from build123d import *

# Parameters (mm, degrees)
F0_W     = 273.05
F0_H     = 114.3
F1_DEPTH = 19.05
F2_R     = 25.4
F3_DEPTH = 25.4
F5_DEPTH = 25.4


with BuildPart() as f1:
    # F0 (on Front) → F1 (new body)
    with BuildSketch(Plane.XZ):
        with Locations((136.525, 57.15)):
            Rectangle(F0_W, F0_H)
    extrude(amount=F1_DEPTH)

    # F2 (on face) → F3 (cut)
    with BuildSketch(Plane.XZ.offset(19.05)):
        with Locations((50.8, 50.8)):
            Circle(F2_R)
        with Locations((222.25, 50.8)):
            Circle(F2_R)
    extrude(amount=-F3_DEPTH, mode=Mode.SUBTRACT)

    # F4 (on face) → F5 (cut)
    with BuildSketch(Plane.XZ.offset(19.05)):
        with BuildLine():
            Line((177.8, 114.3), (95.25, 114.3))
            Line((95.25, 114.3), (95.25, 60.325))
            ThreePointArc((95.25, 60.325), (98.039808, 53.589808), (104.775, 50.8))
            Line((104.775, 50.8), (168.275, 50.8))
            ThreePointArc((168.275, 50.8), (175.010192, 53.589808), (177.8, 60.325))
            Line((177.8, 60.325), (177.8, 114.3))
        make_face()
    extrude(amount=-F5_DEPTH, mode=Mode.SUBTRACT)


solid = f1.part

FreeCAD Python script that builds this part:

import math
import FreeCAD as App
import Part
import Sketcher
from FreeCAD import Vector
Q = App.Units.Quantity

doc = App.newDocument("Part")
body = doc.addObject("PartDesign::Body", "Body")

sketch1 = body.newObject("Sketcher::SketchObject", "Sketch")
sketch1.AttachmentSupport = (doc.getObject("XZ_Plane"), [""])
sketch1.MapMode = "FlatFace"
sketch1.addGeometry(Part.LineSegment(Vector(0, 114, 0), Vector(0, 0, 0)), False)
sketch1.addGeometry(Part.LineSegment(Vector(0, 0, 0), Vector(273, 0, 0)), False)
sketch1.addGeometry(Part.LineSegment(Vector(273, 0, 0), Vector(273, 114, 0)), False)
sketch1.addGeometry(Part.LineSegment(Vector(273, 114, 0), Vector(0, 114, 0)), False)
sketch1.addConstraint(Sketcher.Constraint("Coincident", 0, 2, 1, 1))
sketch1.addConstraint(Sketcher.Constraint("Coincident", 1, 2, 2, 1))
sketch1.addConstraint(Sketcher.Constraint("Coincident", 2, 2, 3, 1))
sketch1.addConstraint(Sketcher.Constraint("Coincident", 3, 2, 0, 1))
sketch1.addConstraint(Sketcher.Constraint("Vertical", 0))
sketch1.addConstraint(Sketcher.Constraint("Horizontal", 1))
sketch1.addConstraint(Sketcher.Constraint("Vertical", 2))
sketch1.addConstraint(Sketcher.Constraint("Horizontal", 3))
sketch1.addConstraint(Sketcher.Constraint("Coincident", 0, 2, -1, 1))
sketch1.addConstraint(Sketcher.Constraint("DistanceY", 0, 2, 0, 1, Q("4.5 in")))
sketch1.addConstraint(Sketcher.Constraint("DistanceX", 1, 1, 1, 2, Q("10.75 in")))
pad1 = body.newObject("PartDesign::Pad", "Pad")
pad1.Profile = sketch1
pad1.Length = Q("0.75 in")

sketch2 = body.newObject("Sketcher::SketchObject", "Sketch001")
sketch2.AttachmentSupport = (doc.getObject("XZ_Plane"), [""])
sketch2.MapMode = "FlatFace"
sketch2.AttachmentOffset = App.Placement(Vector(0, 0, 0.75 * 25.4), App.Rotation())
sketch2.addGeometry(Part.Circle(Vector(51, 51, 0), Vector(0, 0, 1), 25), False)
sketch2.addGeometry(Part.Circle(Vector(222, 51, 0), Vector(0, 0, 1), 25), False)
sketch2.addConstraint(Sketcher.Constraint("Equal", 0, 1))
sketch2.addConstraint(Sketcher.Constraint("Horizontal", 0, 3, 1, 3))
sketch2.addConstraint(Sketcher.Constraint("Diameter", 0, Q("2 in")))
sketch2.addConstraint(Sketcher.Constraint("DistanceX", -1, 1, 0, 3, Q("2 in")))
sketch2.addConstraint(Sketcher.Constraint("DistanceY", -1, 1, 0, 3, Q("2 in")))
sketch2.addConstraint(Sketcher.Constraint("DistanceX", -1, 1, 1, 3, Q("8.75 in")))
pocket1 = body.newObject("PartDesign::Pocket", "Pocket")
pocket1.Profile = sketch2
pocket1.Length = Q("1 in")

sketch3 = body.newObject("Sketcher::SketchObject", "Sketch002")
sketch3.AttachmentSupport = (doc.getObject("XZ_Plane"), [""])
sketch3.MapMode = "FlatFace"
sketch3.AttachmentOffset = App.Placement(Vector(0, 0, 0.75 * 25.4), App.Rotation())
sketch3.addGeometry(Part.LineSegment(Vector(178, 114, 0), Vector(95, 114, 0)), False)
sketch3.addGeometry(Part.LineSegment(Vector(95, 114, 0), Vector(95, 60, 0)), False)
sketch3.addGeometry(Part.ArcOfCircle(Part.Circle(Vector(105, 60, 0), Vector(0, 0, 1), 10), math.radians(-180), math.radians(-90)), False)
sketch3.addGeometry(Part.LineSegment(Vector(105, 51, 0), Vector(168, 51, 0)), False)
sketch3.addGeometry(Part.ArcOfCircle(Part.Circle(Vector(168, 60, 0), Vector(0, 0, 1), 10), math.radians(-90), math.radians(0)), False)
sketch3.addGeometry(Part.LineSegment(Vector(178, 60, 0), Vector(178, 114, 0)), False)
sketch3.addConstraint(Sketcher.Constraint("Coincident", 0, 2, 1, 1))
sketch3.addConstraint(Sketcher.Constraint("Tangent", 1, 2, 2, 1))
sketch3.addConstraint(Sketcher.Constraint("Tangent", 2, 2, 3, 1))
sketch3.addConstraint(Sketcher.Constraint("Tangent", 3, 2, 4, 1))
sketch3.addConstraint(Sketcher.Constraint("Tangent", 4, 2, 5, 1))
sketch3.addConstraint(Sketcher.Constraint("Coincident", 5, 2, 0, 1))
sketch3.addConstraint(Sketcher.Constraint("Horizontal", 0))
sketch3.addConstraint(Sketcher.Constraint("Vertical", 1))
sketch3.addConstraint(Sketcher.Constraint("Horizontal", 3))
sketch3.addConstraint(Sketcher.Constraint("Vertical", 5))
sketch3.addConstraint(Sketcher.Constraint("Equal", 2, 4))
sketch3.addConstraint(Sketcher.Constraint("DistanceX", 3, 1, 3, 2, Q("2.5 in")))
sketch3.addConstraint(Sketcher.Constraint("DistanceY", -1, 1, 2, 2, Q("2 in")))
sketch3.addConstraint(Sketcher.Constraint("DistanceX", -1, 1, 4, 2, Q("7 in")))
sketch3.addConstraint(Sketcher.Constraint("Radius", 2, Q("0.375 in")))
sketch3.addConstraint(Sketcher.Constraint("DistanceY", -1, 1, 0, 2, Q("4.5 in")))
pocket2 = body.newObject("PartDesign::Pocket", "Pocket001")
pocket2.Profile = sketch3
pocket2.Length = Q("1 in")

doc.recompute()
